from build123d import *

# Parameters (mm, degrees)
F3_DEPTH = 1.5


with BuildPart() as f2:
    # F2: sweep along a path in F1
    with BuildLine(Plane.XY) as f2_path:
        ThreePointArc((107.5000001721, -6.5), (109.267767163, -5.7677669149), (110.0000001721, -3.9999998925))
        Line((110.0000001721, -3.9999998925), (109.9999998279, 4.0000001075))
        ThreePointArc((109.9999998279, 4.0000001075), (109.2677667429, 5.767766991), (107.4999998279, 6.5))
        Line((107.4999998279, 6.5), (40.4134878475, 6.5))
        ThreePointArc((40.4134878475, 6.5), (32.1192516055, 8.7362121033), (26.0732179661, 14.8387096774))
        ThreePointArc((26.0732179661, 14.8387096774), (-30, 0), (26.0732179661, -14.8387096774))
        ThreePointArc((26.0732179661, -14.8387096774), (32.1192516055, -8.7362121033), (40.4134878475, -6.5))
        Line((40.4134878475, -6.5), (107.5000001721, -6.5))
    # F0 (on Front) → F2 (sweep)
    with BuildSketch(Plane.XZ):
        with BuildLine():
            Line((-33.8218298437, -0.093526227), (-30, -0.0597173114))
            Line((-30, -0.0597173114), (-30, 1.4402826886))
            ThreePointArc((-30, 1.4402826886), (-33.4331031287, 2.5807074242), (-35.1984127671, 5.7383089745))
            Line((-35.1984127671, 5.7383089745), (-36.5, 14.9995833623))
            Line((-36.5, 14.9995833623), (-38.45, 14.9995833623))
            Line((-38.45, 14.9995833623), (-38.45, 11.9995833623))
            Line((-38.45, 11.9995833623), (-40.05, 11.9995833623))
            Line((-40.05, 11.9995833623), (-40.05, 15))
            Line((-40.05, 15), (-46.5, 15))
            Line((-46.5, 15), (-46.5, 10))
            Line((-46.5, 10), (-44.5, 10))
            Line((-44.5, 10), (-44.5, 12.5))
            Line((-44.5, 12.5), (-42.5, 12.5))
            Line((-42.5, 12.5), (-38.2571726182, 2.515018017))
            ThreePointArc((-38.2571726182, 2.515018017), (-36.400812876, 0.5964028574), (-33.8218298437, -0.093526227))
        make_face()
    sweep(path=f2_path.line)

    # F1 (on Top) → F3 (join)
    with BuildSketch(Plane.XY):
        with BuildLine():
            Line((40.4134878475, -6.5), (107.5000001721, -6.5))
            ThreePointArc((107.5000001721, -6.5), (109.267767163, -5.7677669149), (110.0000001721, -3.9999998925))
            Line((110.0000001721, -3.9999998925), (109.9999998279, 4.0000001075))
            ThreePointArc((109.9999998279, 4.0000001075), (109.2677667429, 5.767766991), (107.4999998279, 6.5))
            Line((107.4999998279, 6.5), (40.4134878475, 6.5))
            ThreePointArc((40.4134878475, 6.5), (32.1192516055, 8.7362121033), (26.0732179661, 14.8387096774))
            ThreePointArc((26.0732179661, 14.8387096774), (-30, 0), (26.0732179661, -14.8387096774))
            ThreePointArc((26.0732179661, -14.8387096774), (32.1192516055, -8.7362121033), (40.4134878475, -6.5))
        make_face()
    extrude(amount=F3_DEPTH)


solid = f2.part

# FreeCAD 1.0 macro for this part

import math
import FreeCAD as App
import Part
import Sketcher
Q = App.Units.Quantity

doc = App.newDocument("Part")
body = doc.addObject("PartDesign::Body", "Body")

sketch1 = body.newObject("Sketcher::SketchObject", "Sketch")
sketch1.AttachmentSupport = (doc.getObject("XZ_Plane"), [""])
sketch1.MapMode = "FlatFace"
sketch1.addGeometry(Part.LineSegment(App.Vector(-33.8, -0.1, 0), App.Vector(-30, -0.1, 0)), False)
sketch1.addGeometry(Part.LineSegment(App.Vector(-30, -0.1, 0), App.Vector(-30, 1.4, 0)), False)
sketch1.addGeometry(Part.ArcOfCircle(Part.Circle(App.Vector(-30.2, 6.4, 0), App.Vector(0, 0, 1), 5), math.radians(-172), math.radians(-87)), False)
sketch1.addGeometry(Part.LineSegment(App.Vector(-35.2, 5.7, 0), App.Vector(-36.5, 15, 0)), False)
sketch1.addGeometry(Part.LineSegment(App.Vector(-36.5, 15, 0), App.Vector(-38.5, 15, 0)), False)
sketch1.addGeometry(Part.LineSegment(App.Vector(-38.5, 15, 0), App.Vector(-38.5, 12, 0)), False)
sketch1.addGeometry(Part.LineSegment(App.Vector(-38.5, 12, 0), App.Vector(-40, 12, 0)), False)
sketch1.addGeometry(Part.LineSegment(App.Vector(-40, 12, 0), App.Vector(-40, 15, 0)), False)
sketch1.addGeometry(Part.LineSegment(App.Vector(-40, 15, 0), App.Vector(-46.5, 15, 0)), False)
sketch1.addGeometry(Part.LineSegment(App.Vector(-46.5, 15, 0), App.Vector(-46.5, 10, 0)), False)
sketch1.addGeometry(Part.LineSegment(App.Vector(-46.5, 10, 0), App.Vector(-44.5, 10, 0)), False)
sketch1.addGeometry(Part.LineSegment(App.Vector(-44.5, 10, 0), App.Vector(-44.5, 12.5, 0)), False)
sketch1.addGeometry(Part.LineSegment(App.Vector(-44.5, 12.5, 0), App.Vector(-42.5, 12.5, 0)), False)
sketch1.addGeometry(Part.LineSegment(App.Vector(-42.5, 12.5, 0), App.Vector(-38.3, 2.5, 0)), False)
sketch1.addGeometry(Part.ArcOfCircle(Part.Circle(App.Vector(-33.9, 4.9, 0), App.Vector(0, 0, 1), 5), math.radians(-151), math.radians(-89)), False)
sketch1.addConstraint(Sketcher.Constraint("Coincident", 0, 2, 1, 1))
sketch1.addConstraint(Sketcher.Constraint("Coincident", 1, 2, 2, 2))
sketch1.addConstraint(Sketcher.Constraint("Tangent", 2, 1, 3, 1))
sketch1.addConstraint(Sketcher.Constraint("Coincident", 3, 2, 4, 1))
sketch1.addConstraint(Sketcher.Constraint("Coincident", 4, 2, 5, 1))
sketch1.addConstraint(Sketcher.Constraint("Coincident", 5, 2, 6, 1))
sketch1.addConstraint(Sketcher.Constraint("Coincident", 6, 2, 7, 1))
sketch1.addConstraint(Sketcher.Constraint("Coincident", 7, 2, 8, 1))
sketch1.addConstraint(Sketcher.Constraint("Coincident", 8, 2, 9, 1))
sketch1.addConstraint(Sketcher.Constraint("Coincident", 9, 2, 10, 1))
sketch1.addConstraint(Sketcher.Constraint("Coincident", 10, 2, 11, 1))
sketch1.addConstraint(Sketcher.Constraint("Coincident", 11, 2, 12, 1))
sketch1.addConstraint(Sketcher.Constraint("Coincident", 12, 2, 13, 1))
sketch1.addConstraint(Sketcher.Constraint("Coincident", 13, 2, 14, 1))
sketch1.addConstraint(Sketcher.Constraint("Tangent", 14, 2, 0, 1))
sketch1.addConstraint(Sketcher.Constraint("Vertical", 1))
sketch1.addConstraint(Sketcher.Constraint("Horizontal", 4))
sketch1.addConstraint(Sketcher.Constraint("Vertical", 5))
sketch1.addConstraint(Sketcher.Constraint("Horizontal", 6))
sketch1.addConstraint(Sketcher.Constraint("Vertical", 7))
sketch1.addConstraint(Sketcher.Constraint("Horizontal", 8))
sketch1.addConstraint(Sketcher.Constraint("Vertical", 9))
sketch1.addConstraint(Sketcher.Constraint("Horizontal", 10))
sketch1.addConstraint(Sketcher.Constraint("Vertical", 11))
sketch1.addConstraint(Sketcher.Constraint("Horizontal", 12))
sketch1.addConstraint(Sketcher.Constraint("Equal", 2, 14))
sketch1.addConstraint(Sketcher.Constraint("Equal", 10, 12))
sketch1.addConstraint(Sketcher.Constraint("Radius", 2, 5.0))
sketch1.addConstraint(Sketcher.Constraint("DistanceX", 10, 1, 10, 2, 2.0))
sketch1.addConstraint(Sketcher.Constraint("DistanceY", 5, 2, 5, 1, 3.0))
sketch1.addConstraint(Sketcher.Constraint("DistanceY", 9, 2, 9, 1, 5.0))
sketch1.addConstraint(Sketcher.Constraint("Angle", 3, Q("98 deg")))
sketch1.addConstraint(Sketcher.Constraint("DistanceX", 6, 2, 6, 1, 1.6))
sketch1.addConstraint(Sketcher.Constraint("DistanceY", 1, 1, 1, 2, 1.5))
sketch1.addConstraint(Sketcher.Constraint("DistanceY", 11, 1, 11, 2, 2.5))
sketch1.addConstraint(Sketcher.Constraint("DistanceX", 0, 2, -1, 1, 30.0))
sketch1.addConstraint(Sketcher.Constraint("DistanceY", -1, 1, 7, 2, 15.0))
sketch1.addConstraint(Sketcher.Constraint("DistanceX", 8, 2, 3, 2, 10.0))
sketch1.addConstraint(Sketcher.Constraint("DistanceX", 4, 2, 4, 1, 1.95))
sketch1.addConstraint(Sketcher.Constraint("DistanceX", 3, 2, -1, 1, 36.5))
sketch1.addConstraint(Sketcher.Constraint("DistanceY", 1, 2, 3, 2, 13.559301))
sketch1.addConstraint(Sketcher.Constraint("DistanceX", 13, 2, 2, 3, 8.0101))
sketch1.addConstraint(Sketcher.Constraint("Distance", 0, 3.821979))
sketch1.addConstraint(Sketcher.Constraint("Distance", 13, 10.84903))
sketch1.addConstraint(Sketcher.Constraint("DistanceY", 7, 1, 7, 2, 3.000417))

sketch2 = body.newObject("Sketcher::SketchObject", "Sketch001")
sketch2.AttachmentSupport = (doc.getObject("XY_Plane"), [""])
sketch2.MapMode = "FlatFace"
sketch2.addGeometry(Part.ArcOfCircle(Part.Circle(App.Vector(107.5, -4, 0), App.Vector(0, 0, 1), 2.5), math.radians(-90), math.radians(0)), False)
sketch2.addGeometry(Part.LineSegment(App.Vector(110, -4, 0), App.Vector(110, 4, 0)), False)
sketch2.addGeometry(Part.ArcOfCircle(Part.Circle(App.Vector(107.5, 4, 0), App.Vector(0, 0, 1), 2.5), math.radians(0), math.radians(90)), False)
sketch2.addGeometry(Part.LineSegment(App.Vector(107.5, 6.5, 0), App.Vector(40.4, 6.5, 0)), False)
sketch2.addGeometry(Part.ArcOfCircle(Part.Circle(App.Vector(40.4, 23, 0), App.Vector(0, 0, 1), 16.5), math.radians(-150), math.radians(-90)), False)
sketch2.addGeometry(Part.ArcOfCircle(Part.Circle(App.Vector(0, 0, 0), App.Vector(0, 0, 1), 30), math.radians(30), math.radians(330)), False)
sketch2.addGeometry(Part.ArcOfCircle(Part.Circle(App.Vector(40.4, -23, 0), App.Vector(0, 0, 1), 16.5), math.radians(90), math.radians(150)), False)
sketch2.addGeometry(Part.LineSegment(App.Vector(40.4, -6.5, 0), App.Vector(107.5, -6.5, 0)), False)
sketch2.addConstraint(Sketcher.Constraint("Tangent", 0, 2, 1, 1))
sketch2.addConstraint(Sketcher.Constraint("Tangent", 1, 2, 2, 1))
sketch2.addConstraint(Sketcher.Constraint("Tangent", 2, 2, 3, 1))
sketch2.addConstraint(Sketcher.Constraint("Tangent", 3, 2, 4, 2))
sketch2.addConstraint(Sketcher.Constraint("Tangent", 4, 1, 5, 1))
sketch2.addConstraint(Sketcher.Constraint("Tangent", 5, 2, 6, 2))
sketch2.addConstraint(Sketcher.Constraint("Tangent", 6, 1, 7, 1))
sketch2.addConstraint(Sketcher.Constraint("Tangent", 7, 2, 0, 1))
sketch2.addConstraint(Sketcher.Constraint("Vertical", 1))
sketch2.addConstraint(Sketcher.Constraint("Horizontal", 3))
sketch2.addConstraint(Sketcher.Constraint("Horizontal", 7))
sketch2.addConstraint(Sketcher.Constraint("Coincident", 5, 3, -1, 1))
sketch2.addConstraint(Sketcher.Constraint("Equal", 0, 2))
sketch2.addConstraint(Sketcher.Constraint("Equal", 4, 6))
sketch2.addConstraint(Sketcher.Constraint("Vertical", 4, 3, 6, 3))
sketch2.addConstraint(Sketcher.Constraint("Radius", 5, 30.0))
sketch2.addConstraint(Sketcher.Constraint("Radius", 0, 2.5))
sketch2.addConstraint(Sketcher.Constraint("Radius", 4, 16.5))
sketch2.addConstraint(Sketcher.Constraint("DistanceY", 1, 1, 1, 2, 8.0))
sketch2.addConstraint(Sketcher.Constraint("DistanceX", -1, 1, 0, 2, 110.0))
doc.recompute()

additivepipe = body.newObject("PartDesign::AdditivePipe", "AdditivePipe")
additivepipe.Profile = sketch1
additivepipe.Spine = (sketch2, ["Edge1", "Edge2", "Edge3", "Edge4", "Edge5", "Edge6", "Edge7", "Edge8"])

sketch3 = body.newObject("Sketcher::SketchObject", "Sketch002")
sketch3.AttachmentSupport = (doc.getObject("XY_Plane"), [""])
sketch3.MapMode = "FlatFace"
sketch3.addGeometry(Part.LineSegment(App.Vector(40.4, -6.5, 0), App.Vector(107.5, -6.5, 0)), False)
sketch3.addGeometry(Part.ArcOfCircle(Part.Circle(App.Vector(107.5, -4, 0), App.Vector(0, 0, 1), 2.5), math.radians(-90), math.radians(0)), False)
sketch3.addGeometry(Part.LineSegment(App.Vector(110, -4, 0), App.Vector(110, 4, 0)), False)
sketch3.addGeometry(Part.ArcOfCircle(Part.Circle(App.Vector(107.5, 4, 0), App.Vector(0, 0, 1), 2.5), math.radians(0), math.radians(90)), False)
sketch3.addGeometry(Part.LineSegment(App.Vector(107.5, 6.5, 0), App.Vector(40.4, 6.5, 0)), False)
sketch3.addGeometry(Part.ArcOfCircle(Part.Circle(App.Vector(40.4, 23, 0), App.Vector(0, 0, 1), 16.5), math.radians(-150), math.radians(-90)), False)
sketch3.addGeometry(Part.ArcOfCircle(Part.Circle(App.Vector(0, 0, 0), App.Vector(0, 0, 1), 30), math.radians(30), math.radians(330)), False)
sketch3.addGeometry(Part.ArcOfCircle(Part.Circle(App.Vector(40.4, -23, 0), App.Vector(0, 0, 1), 16.5), math.radians(90), math.radians(150)), False)
sketch3.addConstraint(Sketcher.Constraint("Tangent", 0, 2, 1, 1))
sketch3.addConstraint(Sketcher.Constraint("Tangent", 1, 2, 2, 1))
sketch3.addConstraint(Sketcher.Constraint("Tangent", 2, 2, 3, 1))
sketch3.addConstraint(Sketcher.Constraint("Tangent", 3, 2, 4, 1))
sketch3.addConstraint(Sketcher.Constraint("Tangent", 4, 2, 5, 2))
sketch3.addConstraint(Sketcher.Constraint("Tangent", 5, 1, 6, 1))
sketch3.addConstraint(Sketcher.Constraint("Tangent", 6, 2, 7, 2))
sketch3.addConstraint(Sketcher.Constraint("Tangent", 7, 1, 0, 1))
sketch3.addConstraint(Sketcher.Constraint("Horizontal", 0))
sketch3.addConstraint(Sketcher.Constraint("Vertical", 2))
sketch3.addConstraint(Sketcher.Constraint("Horizontal", 4))
sketch3.addConstraint(Sketcher.Constraint("Coincident", 6, 3, -1, 1))
sketch3.addConstraint(Sketcher.Constraint("Equal", 1, 3))
sketch3.addConstraint(Sketcher.Constraint("Equal", 5, 7))
sketch3.addConstraint(Sketcher.Constraint("Vertical", 5, 3, 7, 3))
sketch3.addConstraint(Sketcher.Constraint("Radius", 6, 30.0))
sketch3.addConstraint(Sketcher.Constraint("Radius", 1, 2.5))
sketch3.addConstraint(Sketcher.Constraint("Radius", 5, 16.5))
sketch3.addConstraint(Sketcher.Constraint("DistanceY", 2, 1, 2, 2, 8.0))
sketch3.addConstraint(Sketcher.Constraint("DistanceX", -1, 1, 1, 2, 110.0))
pad1 = body.newObject("PartDesign::Pad", "Pad")
pad1.Profile = sketch3
pad1.Length = 1.5

doc.recompute()
